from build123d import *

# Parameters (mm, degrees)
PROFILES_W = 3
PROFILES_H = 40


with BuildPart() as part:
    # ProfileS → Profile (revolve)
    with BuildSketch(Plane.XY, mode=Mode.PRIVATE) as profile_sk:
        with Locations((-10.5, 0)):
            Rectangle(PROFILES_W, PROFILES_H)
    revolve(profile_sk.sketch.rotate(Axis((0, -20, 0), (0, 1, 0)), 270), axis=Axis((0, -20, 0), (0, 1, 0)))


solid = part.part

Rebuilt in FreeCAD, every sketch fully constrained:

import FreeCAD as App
import Part
import Sketcher

doc = App.newDocument("Part")
body = doc.addObject("PartDesign::Body", "Body")

# Sketch on XY plane
sketch1 = doc.addObject("Sketcher::SketchObject", "Sketch")
body.addObject(sketch1)
sketch1.AttachmentSupport = (doc.XY_Plane, [""])
sketch1.MapMode = "FlatFace"
sketch1.addGeometry([
    Part.LineSegment(App.Vector(-12, 20, 0), App.Vector(-12, -20, 0)),
    Part.LineSegment(App.Vector(-12, -20, 0), App.Vector(-9, -20, 0)),
    Part.LineSegment(App.Vector(-9, -20, 0), App.Vector(-9, 20, 0)),
    Part.LineSegment(App.Vector(-9, 20, 0), App.Vector(-12, 20, 0)),
], False)
sketch1.addConstraint([
    Sketcher.Constraint("Coincident", 0, 2, 1, 1),
    Sketcher.Constraint("Coincident", 1, 2, 2, 1),
    Sketcher.Constraint("Coincident", 2, 2, 3, 1),
    Sketcher.Constraint("Coincident", 3, 2, 0, 1),
    Sketcher.Constraint("Vertical", 0),
    Sketcher.Constraint("Horizontal", 1),
    Sketcher.Constraint("Vertical", 2),
    Sketcher.Constraint("Horizontal", 3),
    Sketcher.Constraint("DistanceX", 1, 1, 1, 2, 3.0),
    Sketcher.Constraint("DistanceY", 0, 2, 0, 1, 40.0),
    Sketcher.Constraint("DistanceX", 0, 2, -1, 1, 12.0),
    Sketcher.Constraint("DistanceY", 0, 2, -1, 1, 20.0),
])
revolution = doc.addObject("PartDesign::Revolution", "Revolution")
body.addObject(revolution)
revolution.Profile = sketch1
revolution.ReferenceAxis = (sketch1, ["V_Axis"])
revolution.Angle = 360

doc.recompute()
